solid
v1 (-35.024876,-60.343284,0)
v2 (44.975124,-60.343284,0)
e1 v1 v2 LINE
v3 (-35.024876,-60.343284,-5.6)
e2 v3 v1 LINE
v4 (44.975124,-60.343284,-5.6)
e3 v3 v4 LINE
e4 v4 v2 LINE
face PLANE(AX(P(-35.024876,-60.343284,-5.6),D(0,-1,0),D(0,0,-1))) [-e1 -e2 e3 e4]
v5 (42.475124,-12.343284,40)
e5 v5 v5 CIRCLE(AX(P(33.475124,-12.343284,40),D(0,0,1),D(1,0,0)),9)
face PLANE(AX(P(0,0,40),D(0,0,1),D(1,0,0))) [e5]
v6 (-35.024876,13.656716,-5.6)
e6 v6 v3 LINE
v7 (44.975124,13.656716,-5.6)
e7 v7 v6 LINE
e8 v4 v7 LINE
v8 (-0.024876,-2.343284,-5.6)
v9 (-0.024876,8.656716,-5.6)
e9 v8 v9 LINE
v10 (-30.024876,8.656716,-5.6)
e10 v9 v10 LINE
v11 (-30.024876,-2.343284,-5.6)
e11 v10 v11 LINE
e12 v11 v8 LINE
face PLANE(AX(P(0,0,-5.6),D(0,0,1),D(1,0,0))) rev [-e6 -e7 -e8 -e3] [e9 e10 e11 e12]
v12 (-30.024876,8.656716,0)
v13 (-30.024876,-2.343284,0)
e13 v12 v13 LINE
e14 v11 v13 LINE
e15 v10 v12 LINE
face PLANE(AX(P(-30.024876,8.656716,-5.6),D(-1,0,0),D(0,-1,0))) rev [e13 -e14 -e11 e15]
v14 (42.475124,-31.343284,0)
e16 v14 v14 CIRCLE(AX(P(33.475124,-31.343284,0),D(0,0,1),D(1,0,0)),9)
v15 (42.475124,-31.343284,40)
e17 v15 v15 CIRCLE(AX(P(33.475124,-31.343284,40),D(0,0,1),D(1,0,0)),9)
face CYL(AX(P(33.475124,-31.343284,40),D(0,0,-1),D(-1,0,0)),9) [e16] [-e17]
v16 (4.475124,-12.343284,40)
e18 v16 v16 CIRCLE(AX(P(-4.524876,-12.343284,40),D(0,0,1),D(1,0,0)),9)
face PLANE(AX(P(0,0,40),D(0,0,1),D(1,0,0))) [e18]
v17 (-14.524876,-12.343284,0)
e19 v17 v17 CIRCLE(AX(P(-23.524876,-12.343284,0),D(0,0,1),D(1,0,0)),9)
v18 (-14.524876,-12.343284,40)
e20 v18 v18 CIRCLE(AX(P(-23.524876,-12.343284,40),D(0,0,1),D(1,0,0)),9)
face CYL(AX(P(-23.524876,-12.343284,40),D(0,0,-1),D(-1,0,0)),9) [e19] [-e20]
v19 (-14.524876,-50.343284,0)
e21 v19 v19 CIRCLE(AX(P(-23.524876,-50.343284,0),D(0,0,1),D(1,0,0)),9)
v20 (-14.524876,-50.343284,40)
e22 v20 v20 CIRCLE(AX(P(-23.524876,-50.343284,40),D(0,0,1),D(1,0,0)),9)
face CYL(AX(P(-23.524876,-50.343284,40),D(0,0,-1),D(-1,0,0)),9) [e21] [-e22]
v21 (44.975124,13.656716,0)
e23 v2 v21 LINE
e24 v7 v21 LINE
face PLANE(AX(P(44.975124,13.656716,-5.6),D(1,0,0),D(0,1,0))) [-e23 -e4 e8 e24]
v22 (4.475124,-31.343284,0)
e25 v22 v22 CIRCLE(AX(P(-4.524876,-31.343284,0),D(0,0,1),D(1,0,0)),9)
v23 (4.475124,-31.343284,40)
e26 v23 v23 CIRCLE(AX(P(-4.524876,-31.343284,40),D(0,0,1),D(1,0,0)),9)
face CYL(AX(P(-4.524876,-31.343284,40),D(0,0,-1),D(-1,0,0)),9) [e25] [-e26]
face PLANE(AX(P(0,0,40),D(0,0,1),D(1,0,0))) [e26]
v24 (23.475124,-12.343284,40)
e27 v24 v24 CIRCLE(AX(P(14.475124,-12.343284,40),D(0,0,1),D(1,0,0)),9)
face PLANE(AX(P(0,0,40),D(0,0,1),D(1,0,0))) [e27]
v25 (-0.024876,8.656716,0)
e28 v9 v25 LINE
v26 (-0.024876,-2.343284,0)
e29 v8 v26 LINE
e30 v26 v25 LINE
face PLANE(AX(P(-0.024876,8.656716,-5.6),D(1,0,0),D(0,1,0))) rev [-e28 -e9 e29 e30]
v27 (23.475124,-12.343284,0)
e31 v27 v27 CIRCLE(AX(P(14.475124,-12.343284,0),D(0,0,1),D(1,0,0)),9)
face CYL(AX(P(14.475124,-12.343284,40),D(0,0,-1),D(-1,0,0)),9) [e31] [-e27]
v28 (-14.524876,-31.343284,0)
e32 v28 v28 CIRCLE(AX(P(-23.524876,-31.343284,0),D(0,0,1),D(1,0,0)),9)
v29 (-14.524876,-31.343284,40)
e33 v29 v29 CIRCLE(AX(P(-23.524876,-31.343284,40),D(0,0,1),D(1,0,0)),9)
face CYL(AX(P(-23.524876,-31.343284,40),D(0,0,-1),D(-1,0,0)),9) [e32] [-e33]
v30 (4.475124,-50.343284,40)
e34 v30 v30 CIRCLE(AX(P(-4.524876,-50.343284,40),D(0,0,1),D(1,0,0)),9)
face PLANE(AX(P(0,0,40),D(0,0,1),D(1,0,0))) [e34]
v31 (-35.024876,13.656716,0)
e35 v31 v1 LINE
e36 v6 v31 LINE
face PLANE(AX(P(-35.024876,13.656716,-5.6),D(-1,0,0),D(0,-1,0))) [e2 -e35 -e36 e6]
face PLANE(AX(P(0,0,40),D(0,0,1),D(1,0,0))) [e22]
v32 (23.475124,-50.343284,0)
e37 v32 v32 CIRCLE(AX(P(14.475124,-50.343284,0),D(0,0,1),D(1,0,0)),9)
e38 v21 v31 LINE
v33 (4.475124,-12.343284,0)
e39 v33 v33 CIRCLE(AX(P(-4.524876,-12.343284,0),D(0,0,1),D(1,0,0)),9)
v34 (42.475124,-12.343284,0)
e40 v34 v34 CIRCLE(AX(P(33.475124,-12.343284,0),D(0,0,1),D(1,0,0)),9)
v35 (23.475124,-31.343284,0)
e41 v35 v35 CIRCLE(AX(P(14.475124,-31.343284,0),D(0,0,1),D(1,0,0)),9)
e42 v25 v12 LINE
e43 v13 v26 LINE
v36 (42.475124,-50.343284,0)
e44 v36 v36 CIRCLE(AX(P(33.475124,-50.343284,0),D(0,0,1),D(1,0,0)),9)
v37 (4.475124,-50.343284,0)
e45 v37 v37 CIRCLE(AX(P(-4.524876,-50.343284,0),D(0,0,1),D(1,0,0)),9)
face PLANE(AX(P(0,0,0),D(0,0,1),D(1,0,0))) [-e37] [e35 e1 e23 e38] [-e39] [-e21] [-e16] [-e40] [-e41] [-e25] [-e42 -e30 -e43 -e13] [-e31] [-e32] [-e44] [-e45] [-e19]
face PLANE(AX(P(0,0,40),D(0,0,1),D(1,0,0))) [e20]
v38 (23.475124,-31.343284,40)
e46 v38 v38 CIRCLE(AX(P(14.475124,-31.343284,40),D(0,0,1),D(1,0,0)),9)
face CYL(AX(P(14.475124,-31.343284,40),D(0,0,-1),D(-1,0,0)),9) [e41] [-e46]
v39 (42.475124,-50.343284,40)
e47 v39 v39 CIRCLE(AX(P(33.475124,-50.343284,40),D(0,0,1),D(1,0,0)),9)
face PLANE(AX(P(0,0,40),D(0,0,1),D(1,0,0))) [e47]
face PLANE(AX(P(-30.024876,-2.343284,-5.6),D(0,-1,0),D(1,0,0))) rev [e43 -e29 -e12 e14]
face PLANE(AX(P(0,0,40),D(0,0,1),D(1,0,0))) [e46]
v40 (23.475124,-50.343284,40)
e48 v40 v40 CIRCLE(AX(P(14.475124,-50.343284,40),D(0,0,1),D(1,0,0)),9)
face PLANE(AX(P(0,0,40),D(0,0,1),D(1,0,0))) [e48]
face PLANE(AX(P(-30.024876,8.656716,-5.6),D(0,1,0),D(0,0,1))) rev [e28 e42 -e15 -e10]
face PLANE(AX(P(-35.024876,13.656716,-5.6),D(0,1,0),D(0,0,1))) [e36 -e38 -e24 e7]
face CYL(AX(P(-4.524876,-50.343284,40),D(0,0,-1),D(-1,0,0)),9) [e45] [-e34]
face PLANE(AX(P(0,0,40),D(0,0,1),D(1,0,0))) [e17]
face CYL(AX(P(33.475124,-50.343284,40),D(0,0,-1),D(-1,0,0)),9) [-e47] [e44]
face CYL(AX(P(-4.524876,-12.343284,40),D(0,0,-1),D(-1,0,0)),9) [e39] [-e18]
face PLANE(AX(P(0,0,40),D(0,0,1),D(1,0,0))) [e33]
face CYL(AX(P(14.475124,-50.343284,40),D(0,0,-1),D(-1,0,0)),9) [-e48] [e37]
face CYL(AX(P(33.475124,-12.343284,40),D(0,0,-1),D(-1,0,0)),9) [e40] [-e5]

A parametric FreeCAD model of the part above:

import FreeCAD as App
import Part
import Sketcher
Q = App.Units.Quantity

doc = App.newDocument("Part")
params = doc.addObject("Spreadsheet::Sheet", "Params")
for row, (alias, value) in enumerate([
    ("sketch1_width", "80 mm"),
    ("sketch1_width2", "30 mm"),
    ("sketch1_height", "74 mm"),
    ("sketch1_height2", "11 mm"),
    ("pad1_length", "5.6 mm"),
    ("sketch2_diameter", "18 mm"),
    ("pad2_length", "40 mm"),
], start=1):
    params.set(f"A{row}", alias)
    params.set(f"B{row}", "=" + value)
    params.setAlias(f"B{row}", alias)

body = doc.addObject("PartDesign::Body", "Body")

# Sketch on XY plane
sketch1 = body.newObject("Sketcher::SketchObject", "Sketch")
sketch1.AttachmentSupport = (doc.getObject("XY_Plane"), [""])
sketch1.MapMode = "FlatFace"
sketch1.addGeometry([
    Part.LineSegment(App.Vector(-35.024876, 13.656716, 0), App.Vector(-35.024876, -60.343284, 0)),  # 0
    Part.LineSegment(App.Vector(-35.024876, -60.343284, 0), App.Vector(44.975124, -60.343284, 0)),  # 1
    Part.LineSegment(App.Vector(44.975124, -60.343284, 0), App.Vector(44.975124, 13.656716, 0)),  # 2
    Part.LineSegment(App.Vector(44.975124, 13.656716, 0), App.Vector(-35.024876, 13.656716, 0)),  # 3
    Part.LineSegment(App.Vector(-0.024876, -2.343284, 0), App.Vector(-30.024876, -2.343284, 0)),  # 4
    Part.LineSegment(App.Vector(-30.024876, -2.343284, 0), App.Vector(-30.024876, 8.656716, 0)),  # 5
    Part.LineSegment(App.Vector(-30.024876, 8.656716, 0), App.Vector(-0.024876, 8.656716, 0)),  # 6
    Part.LineSegment(App.Vector(-0.024876, 8.656716, 0), App.Vector(-0.024876, -2.343284, 0)),  # 7
], False)
sketch1.addConstraint([
    Sketcher.Constraint("Coincident", 0, 2, 1, 1),
    Sketcher.Constraint("Coincident", 1, 2, 2, 1),
    Sketcher.Constraint("Coincident", 2, 2, 3, 1),
    Sketcher.Constraint("Coincident", 3, 2, 0, 1),
    Sketcher.Constraint("Coincident", 4, 2, 5, 1),
    Sketcher.Constraint("Coincident", 5, 2, 6, 1),
    Sketcher.Constraint("Coincident", 6, 2, 7, 1),
    Sketcher.Constraint("Coincident", 7, 2, 4, 1),
    Sketcher.Constraint("Vertical", 0),
    Sketcher.Constraint("Horizontal", 1),
    Sketcher.Constraint("Vertical", 2),
    Sketcher.Constraint("Horizontal", 3),
    Sketcher.Constraint("Horizontal", 4),
    Sketcher.Constraint("Vertical", 5),
    Sketcher.Constraint("Horizontal", 6),
    Sketcher.Constraint("Vertical", 7),
    Sketcher.Constraint("DistanceX", 1, 1, 1, 2, Q("80 mm")),
    Sketcher.Constraint("DistanceX", 4, 2, 4, 1, Q("30 mm")),
    Sketcher.Constraint("DistanceY", 0, 2, 0, 1, Q("74 mm")),
    Sketcher.Constraint("DistanceY", 5, 1, 5, 2, Q("11 mm")),
    Sketcher.Constraint("DistanceX", 3, 2, 4, 2, Q("5 mm")),
    Sketcher.Constraint("DistanceY", 4, 2, 3, 2, Q("16 mm")),
    Sketcher.Constraint("DistanceX", 0, 2, -1, 1, Q("35.024876 mm")),
    Sketcher.Constraint("DistanceY", 0, 2, -1, 1, Q("60.343284 mm")),
])
sketch1.setExpression("Constraints[16]", "Params.sketch1_width")
sketch1.setExpression("Constraints[17]", "Params.sketch1_width2")
sketch1.setExpression("Constraints[18]", "Params.sketch1_height")
sketch1.setExpression("Constraints[19]", "Params.sketch1_height2")
pad1 = body.newObject("PartDesign::Pad", "Pad")
pad1.Profile = sketch1
pad1.setExpression("Length", "Params.pad1_length")
pad1.Reversed = True

# Sketch on XY plane
sketch2 = body.newObject("Sketcher::SketchObject", "Sketch001")
sketch2.AttachmentSupport = (doc.getObject("XY_Plane"), [""])
sketch2.MapMode = "FlatFace"
sketch2.addGeometry([
    Part.Circle(App.Vector(-23.524876, -50.343284, 0), App.Vector(0, 0, 1), 9),  # 0
    Part.Circle(App.Vector(-4.524876, -50.343284, 0), App.Vector(0, 0, 1), 9),  # 1
    Part.Circle(App.Vector(14.475124, -50.343284, 0), App.Vector(0, 0, 1), 9),  # 2
    Part.Circle(App.Vector(33.475124, -50.343284, 0), App.Vector(0, 0, 1), 9),  # 3
    Part.Circle(App.Vector(-4.524876, -31.343284, 0), App.Vector(0, 0, 1), 9),  # 4
    Part.Circle(App.Vector(14.475124, -31.343284, 0), App.Vector(0, 0, 1), 9),  # 5
    Part.Circle(App.Vector(33.475124, -31.343284, 0), App.Vector(0, 0, 1), 9),  # 6
    Part.Circle(App.Vector(-4.524876, -12.343284, 0), App.Vector(0, 0, 1), 9),  # 7
    Part.Circle(App.Vector(14.475124, -12.343284, 0), App.Vector(0, 0, 1), 9),  # 8
    Part.Circle(App.Vector(33.475124, -12.343284, 0), App.Vector(0, 0, 1), 9),  # 9
    Part.Circle(App.Vector(-23.524876, -31.343284, 0), App.Vector(0, 0, 1), 9),  # 10
    Part.Circle(App.Vector(-23.524876, -12.343284, 0), App.Vector(0, 0, 1), 9),  # 11
], False)
sketch2.addConstraint([
    Sketcher.Constraint("Equal", 0, 1),
    Sketcher.Constraint("Equal", 1, 2),
    Sketcher.Constraint("Equal", 2, 3),
    Sketcher.Constraint("Equal", 3, 4),
    Sketcher.Constraint("Equal", 4, 5),
    Sketcher.Constraint("Equal", 5, 6),
    Sketcher.Constraint("Equal", 6, 7),
    Sketcher.Constraint("Equal", 7, 8),
    Sketcher.Constraint("Equal", 8, 9),
    Sketcher.Constraint("Equal", 9, 10),
    Sketcher.Constraint("Equal", 10, 11),
    Sketcher.Constraint("Horizontal", 0, 3, 1, 3),
    Sketcher.Constraint("Horizontal", 1, 3, 2, 3),
    Sketcher.Constraint("Horizontal", 2, 3, 3, 3),
    Sketcher.Constraint("Horizontal", 4, 3, 5, 3),
    Sketcher.Constraint("Horizontal", 5, 3, 6, 3),
    Sketcher.Constraint("Horizontal", 7, 3, 8, 3),
    Sketcher.Constraint("Horizontal", 8, 3, 9, 3),
    Sketcher.Constraint("Horizontal", 6, 3, 10, 3),
    Sketcher.Constraint("Horizontal", 9, 3, 11, 3),
    Sketcher.Constraint("Vertical", 1, 3, 4, 3),
    Sketcher.Constraint("Vertical", 2, 3, 5, 3),
    Sketcher.Constraint("Vertical", 3, 3, 6, 3),
    Sketcher.Constraint("Vertical", 4, 3, 7, 3),
    Sketcher.Constraint("Vertical", 5, 3, 8, 3),
    Sketcher.Constraint("Vertical", 6, 3, 9, 3),
    Sketcher.Constraint("Vertical", 0, 3, 10, 3),
    Sketcher.Constraint("Vertical", 10, 3, 11, 3),
    Sketcher.Constraint("Diameter", 0, Q("18 mm")),
    Sketcher.Constraint("DistanceX", 0, 3, 1, 3, Q("19 mm")),
    Sketcher.Constraint("DistanceX", 1, 3, 2, 3, Q("19 mm")),
    Sketcher.Constraint("DistanceX", 2, 3, 3, 3, Q("19 mm")),
    Sketcher.Constraint("DistanceY", 1, 3, 4, 3, Q("19 mm")),
    Sketcher.Constraint("DistanceY", 4, 3, 7, 3, Q("19 mm")),
    Sketcher.Constraint("DistanceX", 0, 3, -1, 1, Q("23.524876 mm")),
    Sketcher.Constraint("DistanceY", 0, 3, -1, 1, Q("50.343284 mm")),
])
sketch2.setExpression("Constraints[28]", "Params.sketch2_diameter")
pad2 = body.newObject("PartDesign::Pad", "Pad001")
pad2.Profile = sketch2
pad2.setExpression("Length", "Params.pad2_length")

doc.recompute()
